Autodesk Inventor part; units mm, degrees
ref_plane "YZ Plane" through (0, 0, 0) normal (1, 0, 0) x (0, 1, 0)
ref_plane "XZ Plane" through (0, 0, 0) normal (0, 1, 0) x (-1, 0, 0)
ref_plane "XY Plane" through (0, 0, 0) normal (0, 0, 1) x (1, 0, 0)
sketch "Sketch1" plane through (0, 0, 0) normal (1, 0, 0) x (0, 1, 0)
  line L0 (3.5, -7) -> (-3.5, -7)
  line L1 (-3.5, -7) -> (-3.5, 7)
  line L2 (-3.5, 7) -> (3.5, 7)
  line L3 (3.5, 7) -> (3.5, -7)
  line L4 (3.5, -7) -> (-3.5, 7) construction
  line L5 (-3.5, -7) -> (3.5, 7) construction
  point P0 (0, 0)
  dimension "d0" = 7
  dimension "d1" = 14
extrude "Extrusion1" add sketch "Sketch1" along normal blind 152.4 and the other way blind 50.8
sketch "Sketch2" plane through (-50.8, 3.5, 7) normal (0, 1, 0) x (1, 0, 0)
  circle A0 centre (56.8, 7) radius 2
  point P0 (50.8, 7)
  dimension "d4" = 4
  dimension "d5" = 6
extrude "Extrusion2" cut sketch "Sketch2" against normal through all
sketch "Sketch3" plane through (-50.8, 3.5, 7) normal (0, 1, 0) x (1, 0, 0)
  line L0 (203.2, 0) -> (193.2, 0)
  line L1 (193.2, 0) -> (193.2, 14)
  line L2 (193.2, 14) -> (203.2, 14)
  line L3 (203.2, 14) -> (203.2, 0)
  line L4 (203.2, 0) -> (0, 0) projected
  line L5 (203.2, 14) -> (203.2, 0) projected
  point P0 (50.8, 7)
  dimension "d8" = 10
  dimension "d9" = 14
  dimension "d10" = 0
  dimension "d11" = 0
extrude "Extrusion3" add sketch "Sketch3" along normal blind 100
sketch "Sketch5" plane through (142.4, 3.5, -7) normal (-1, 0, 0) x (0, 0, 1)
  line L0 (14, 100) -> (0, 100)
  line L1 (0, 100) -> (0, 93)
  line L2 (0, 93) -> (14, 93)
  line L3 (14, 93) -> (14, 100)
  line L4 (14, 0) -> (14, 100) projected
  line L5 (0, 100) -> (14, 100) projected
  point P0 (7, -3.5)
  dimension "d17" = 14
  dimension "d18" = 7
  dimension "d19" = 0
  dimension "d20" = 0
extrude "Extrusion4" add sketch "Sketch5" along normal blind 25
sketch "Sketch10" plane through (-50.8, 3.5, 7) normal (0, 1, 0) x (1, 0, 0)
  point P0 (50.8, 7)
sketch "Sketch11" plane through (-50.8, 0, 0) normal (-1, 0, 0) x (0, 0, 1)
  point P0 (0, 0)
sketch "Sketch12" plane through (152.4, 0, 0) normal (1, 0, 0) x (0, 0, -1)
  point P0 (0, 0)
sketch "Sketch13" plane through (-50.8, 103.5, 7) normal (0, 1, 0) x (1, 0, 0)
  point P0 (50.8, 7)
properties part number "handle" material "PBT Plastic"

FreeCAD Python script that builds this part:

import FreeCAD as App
import Part
import Sketcher
Q = App.Units.Quantity

doc = App.newDocument("Part")
body = doc.addObject("PartDesign::Body", "Body")

# Sketch on YZ plane
sketch1 = body.newObject("Sketcher::SketchObject", "Sketch")
sketch1.AttachmentSupport = (doc.getObject("YZ_Plane"), [""])
sketch1.MapMode = "FlatFace"
sketch1.addGeometry(Part.LineSegment(App.Vector(-4, -7, 0), App.Vector(4, -7, 0)), False)
sketch1.addGeometry(Part.LineSegment(App.Vector(4, -7, 0), App.Vector(4, 7, 0)), False)
sketch1.addGeometry(Part.LineSegment(App.Vector(4, 7, 0), App.Vector(-4, 7, 0)), False)
sketch1.addGeometry(Part.LineSegment(App.Vector(-4, 7, 0), App.Vector(-4, -7, 0)), False)
sketch1.addConstraint(Sketcher.Constraint("Coincident", 0, 2, 1, 1))
sketch1.addConstraint(Sketcher.Constraint("Coincident", 1, 2, 2, 1))
sketch1.addConstraint(Sketcher.Constraint("Coincident", 2, 2, 3, 1))
sketch1.addConstraint(Sketcher.Constraint("Coincident", 3, 2, 0, 1))
sketch1.addConstraint(Sketcher.Constraint("Horizontal", 0))
sketch1.addConstraint(Sketcher.Constraint("Vertical", 1))
sketch1.addConstraint(Sketcher.Constraint("Horizontal", 2))
sketch1.addConstraint(Sketcher.Constraint("Vertical", 3))
sketch1.addConstraint(Sketcher.Constraint("Symmetric", 0, 2, 2, 2, -1, 1))
sketch1.addConstraint(Sketcher.Constraint("DistanceX", 0, 1, 0, 2, Q("7 mm")))
sketch1.addConstraint(Sketcher.Constraint("DistanceY", 1, 1, 1, 2, Q("14 mm")))
pad1 = body.newObject("PartDesign::Pad", "Pad")
pad1.Profile = sketch1
pad1.Type = "TwoLengths"
pad1.Length = 152.4
pad1.Length2 = 50.8

# Sketch on XZ plane
sketch2 = body.newObject("Sketcher::SketchObject", "Sketch001")
sketch2.AttachmentSupport = (doc.getObject("XZ_Plane"), [""])
sketch2.MapMode = "FlatFace"
sketch2.AttachmentOffset = App.Placement(App.Vector(0, 0, -3.5), App.Rotation())
sketch2.addGeometry(Part.Circle(App.Vector(6, 0, 0), App.Vector(0, 0, 1), 2), False)
sketch2.addConstraint(Sketcher.Constraint("PointOnObject", 0, 3, -1))
sketch2.addConstraint(Sketcher.Constraint("Diameter", 0, Q("4 mm")))
sketch2.addConstraint(Sketcher.Constraint("DistanceX", -1, 1, 0, 3, Q("6 mm")))
pocket1 = body.newObject("PartDesign::Pocket", "Pocket")
pocket1.Profile = sketch2
pocket1.Type = "ThroughAll"
pocket1.Reversed = True

# Sketch on XZ plane
sketch3 = body.newObject("Sketcher::SketchObject", "Sketch002")
sketch3.AttachmentSupport = (doc.getObject("XZ_Plane"), [""])
sketch3.MapMode = "FlatFace"
sketch3.AttachmentOffset = App.Placement(App.Vector(0, 0, -3.5), App.Rotation())
sketch3.addGeometry(Part.LineSegment(App.Vector(142, 7, 0), App.Vector(152, 7, 0)), False)
sketch3.addGeometry(Part.LineSegment(App.Vector(152, 7, 0), App.Vector(152, -7, 0)), False)
sketch3.addGeometry(Part.LineSegment(App.Vector(152, -7, 0), App.Vector(142, -7, 0)), False)
sketch3.addGeometry(Part.LineSegment(App.Vector(142, -7, 0), App.Vector(142, 7, 0)), False)
sketch3.addConstraint(Sketcher.Constraint("Coincident", 0, 2, 1, 1))
sketch3.addConstraint(Sketcher.Constraint("Coincident", 1, 2, 2, 1))
sketch3.addConstraint(Sketcher.Constraint("Coincident", 2, 2, 3, 1))
sketch3.addConstraint(Sketcher.Constraint("Coincident", 3, 2, 0, 1))
sketch3.addConstraint(Sketcher.Constraint("Horizontal", 0))
sketch3.addConstraint(Sketcher.Constraint("Vertical", 1))
sketch3.addConstraint(Sketcher.Constraint("Horizontal", 2))
sketch3.addConstraint(Sketcher.Constraint("Vertical", 3))
sketch3.addConstraint(Sketcher.Constraint("DistanceX", 0, 1, 0, 2, Q("10 mm")))
sketch3.addConstraint(Sketcher.Constraint("DistanceY", 1, 2, 1, 1, Q("14 mm")))
sketch3.addConstraint(Sketcher.Constraint("DistanceY", -1, 1, 0, 2, Q("7 mm")))
sketch3.addConstraint(Sketcher.Constraint("DistanceX", -1, 1, 0, 2, Q("152.4 mm")))
pad2 = body.newObject("PartDesign::Pad", "Pad001")
pad2.Profile = sketch3
pad2.Length = 100
pad2.Reversed = True

# Sketch on YZ plane
sketch4 = body.newObject("Sketcher::SketchObject", "Sketch003")
sketch4.AttachmentSupport = (doc.getObject("YZ_Plane"), [""])
sketch4.MapMode = "FlatFace"
sketch4.AttachmentOffset = App.Placement(App.Vector(0, 0, 142.4), App.Rotation())
sketch4.addGeometry(Part.LineSegment(App.Vector(96, 7, 0), App.Vector(104, 7, 0)), False)
sketch4.addGeometry(Part.LineSegment(App.Vector(104, 7, 0), App.Vector(104, -7, 0)), False)
sketch4.addGeometry(Part.LineSegment(App.Vector(104, -7, 0), App.Vector(96, -7, 0)), False)
sketch4.addGeometry(Part.LineSegment(App.Vector(96, -7, 0), App.Vector(96, 7, 0)), False)
sketch4.addConstraint(Sketcher.Constraint("Coincident", 0, 2, 1, 1))
sketch4.addConstraint(Sketcher.Constraint("Coincident", 1, 2, 2, 1))
sketch4.addConstraint(Sketcher.Constraint("Coincident", 2, 2, 3, 1))
sketch4.addConstraint(Sketcher.Constraint("Coincident", 3, 2, 0, 1))
sketch4.addConstraint(Sketcher.Constraint("Horizontal", 0))
sketch4.addConstraint(Sketcher.Constraint("Vertical", 1))
sketch4.addConstraint(Sketcher.Constraint("Horizontal", 2))
sketch4.addConstraint(Sketcher.Constraint("Vertical", 3))
sketch4.addConstraint(Sketcher.Constraint("DistanceX", 0, 1, 0, 2, Q("7 mm")))
sketch4.addConstraint(Sketcher.Constraint("DistanceY", 1, 2, 1, 1, Q("14 mm")))
sketch4.addConstraint(Sketcher.Constraint("DistanceY", -1, 1, 0, 2, Q("7 mm")))
sketch4.addConstraint(Sketcher.Constraint("DistanceX", -1, 1, 0, 2, Q("103.5 mm")))
pad3 = body.newObject("PartDesign::Pad", "Pad002")
pad3.Profile = sketch4
pad3.Length = 25
pad3.Reversed = True

doc.recompute()
